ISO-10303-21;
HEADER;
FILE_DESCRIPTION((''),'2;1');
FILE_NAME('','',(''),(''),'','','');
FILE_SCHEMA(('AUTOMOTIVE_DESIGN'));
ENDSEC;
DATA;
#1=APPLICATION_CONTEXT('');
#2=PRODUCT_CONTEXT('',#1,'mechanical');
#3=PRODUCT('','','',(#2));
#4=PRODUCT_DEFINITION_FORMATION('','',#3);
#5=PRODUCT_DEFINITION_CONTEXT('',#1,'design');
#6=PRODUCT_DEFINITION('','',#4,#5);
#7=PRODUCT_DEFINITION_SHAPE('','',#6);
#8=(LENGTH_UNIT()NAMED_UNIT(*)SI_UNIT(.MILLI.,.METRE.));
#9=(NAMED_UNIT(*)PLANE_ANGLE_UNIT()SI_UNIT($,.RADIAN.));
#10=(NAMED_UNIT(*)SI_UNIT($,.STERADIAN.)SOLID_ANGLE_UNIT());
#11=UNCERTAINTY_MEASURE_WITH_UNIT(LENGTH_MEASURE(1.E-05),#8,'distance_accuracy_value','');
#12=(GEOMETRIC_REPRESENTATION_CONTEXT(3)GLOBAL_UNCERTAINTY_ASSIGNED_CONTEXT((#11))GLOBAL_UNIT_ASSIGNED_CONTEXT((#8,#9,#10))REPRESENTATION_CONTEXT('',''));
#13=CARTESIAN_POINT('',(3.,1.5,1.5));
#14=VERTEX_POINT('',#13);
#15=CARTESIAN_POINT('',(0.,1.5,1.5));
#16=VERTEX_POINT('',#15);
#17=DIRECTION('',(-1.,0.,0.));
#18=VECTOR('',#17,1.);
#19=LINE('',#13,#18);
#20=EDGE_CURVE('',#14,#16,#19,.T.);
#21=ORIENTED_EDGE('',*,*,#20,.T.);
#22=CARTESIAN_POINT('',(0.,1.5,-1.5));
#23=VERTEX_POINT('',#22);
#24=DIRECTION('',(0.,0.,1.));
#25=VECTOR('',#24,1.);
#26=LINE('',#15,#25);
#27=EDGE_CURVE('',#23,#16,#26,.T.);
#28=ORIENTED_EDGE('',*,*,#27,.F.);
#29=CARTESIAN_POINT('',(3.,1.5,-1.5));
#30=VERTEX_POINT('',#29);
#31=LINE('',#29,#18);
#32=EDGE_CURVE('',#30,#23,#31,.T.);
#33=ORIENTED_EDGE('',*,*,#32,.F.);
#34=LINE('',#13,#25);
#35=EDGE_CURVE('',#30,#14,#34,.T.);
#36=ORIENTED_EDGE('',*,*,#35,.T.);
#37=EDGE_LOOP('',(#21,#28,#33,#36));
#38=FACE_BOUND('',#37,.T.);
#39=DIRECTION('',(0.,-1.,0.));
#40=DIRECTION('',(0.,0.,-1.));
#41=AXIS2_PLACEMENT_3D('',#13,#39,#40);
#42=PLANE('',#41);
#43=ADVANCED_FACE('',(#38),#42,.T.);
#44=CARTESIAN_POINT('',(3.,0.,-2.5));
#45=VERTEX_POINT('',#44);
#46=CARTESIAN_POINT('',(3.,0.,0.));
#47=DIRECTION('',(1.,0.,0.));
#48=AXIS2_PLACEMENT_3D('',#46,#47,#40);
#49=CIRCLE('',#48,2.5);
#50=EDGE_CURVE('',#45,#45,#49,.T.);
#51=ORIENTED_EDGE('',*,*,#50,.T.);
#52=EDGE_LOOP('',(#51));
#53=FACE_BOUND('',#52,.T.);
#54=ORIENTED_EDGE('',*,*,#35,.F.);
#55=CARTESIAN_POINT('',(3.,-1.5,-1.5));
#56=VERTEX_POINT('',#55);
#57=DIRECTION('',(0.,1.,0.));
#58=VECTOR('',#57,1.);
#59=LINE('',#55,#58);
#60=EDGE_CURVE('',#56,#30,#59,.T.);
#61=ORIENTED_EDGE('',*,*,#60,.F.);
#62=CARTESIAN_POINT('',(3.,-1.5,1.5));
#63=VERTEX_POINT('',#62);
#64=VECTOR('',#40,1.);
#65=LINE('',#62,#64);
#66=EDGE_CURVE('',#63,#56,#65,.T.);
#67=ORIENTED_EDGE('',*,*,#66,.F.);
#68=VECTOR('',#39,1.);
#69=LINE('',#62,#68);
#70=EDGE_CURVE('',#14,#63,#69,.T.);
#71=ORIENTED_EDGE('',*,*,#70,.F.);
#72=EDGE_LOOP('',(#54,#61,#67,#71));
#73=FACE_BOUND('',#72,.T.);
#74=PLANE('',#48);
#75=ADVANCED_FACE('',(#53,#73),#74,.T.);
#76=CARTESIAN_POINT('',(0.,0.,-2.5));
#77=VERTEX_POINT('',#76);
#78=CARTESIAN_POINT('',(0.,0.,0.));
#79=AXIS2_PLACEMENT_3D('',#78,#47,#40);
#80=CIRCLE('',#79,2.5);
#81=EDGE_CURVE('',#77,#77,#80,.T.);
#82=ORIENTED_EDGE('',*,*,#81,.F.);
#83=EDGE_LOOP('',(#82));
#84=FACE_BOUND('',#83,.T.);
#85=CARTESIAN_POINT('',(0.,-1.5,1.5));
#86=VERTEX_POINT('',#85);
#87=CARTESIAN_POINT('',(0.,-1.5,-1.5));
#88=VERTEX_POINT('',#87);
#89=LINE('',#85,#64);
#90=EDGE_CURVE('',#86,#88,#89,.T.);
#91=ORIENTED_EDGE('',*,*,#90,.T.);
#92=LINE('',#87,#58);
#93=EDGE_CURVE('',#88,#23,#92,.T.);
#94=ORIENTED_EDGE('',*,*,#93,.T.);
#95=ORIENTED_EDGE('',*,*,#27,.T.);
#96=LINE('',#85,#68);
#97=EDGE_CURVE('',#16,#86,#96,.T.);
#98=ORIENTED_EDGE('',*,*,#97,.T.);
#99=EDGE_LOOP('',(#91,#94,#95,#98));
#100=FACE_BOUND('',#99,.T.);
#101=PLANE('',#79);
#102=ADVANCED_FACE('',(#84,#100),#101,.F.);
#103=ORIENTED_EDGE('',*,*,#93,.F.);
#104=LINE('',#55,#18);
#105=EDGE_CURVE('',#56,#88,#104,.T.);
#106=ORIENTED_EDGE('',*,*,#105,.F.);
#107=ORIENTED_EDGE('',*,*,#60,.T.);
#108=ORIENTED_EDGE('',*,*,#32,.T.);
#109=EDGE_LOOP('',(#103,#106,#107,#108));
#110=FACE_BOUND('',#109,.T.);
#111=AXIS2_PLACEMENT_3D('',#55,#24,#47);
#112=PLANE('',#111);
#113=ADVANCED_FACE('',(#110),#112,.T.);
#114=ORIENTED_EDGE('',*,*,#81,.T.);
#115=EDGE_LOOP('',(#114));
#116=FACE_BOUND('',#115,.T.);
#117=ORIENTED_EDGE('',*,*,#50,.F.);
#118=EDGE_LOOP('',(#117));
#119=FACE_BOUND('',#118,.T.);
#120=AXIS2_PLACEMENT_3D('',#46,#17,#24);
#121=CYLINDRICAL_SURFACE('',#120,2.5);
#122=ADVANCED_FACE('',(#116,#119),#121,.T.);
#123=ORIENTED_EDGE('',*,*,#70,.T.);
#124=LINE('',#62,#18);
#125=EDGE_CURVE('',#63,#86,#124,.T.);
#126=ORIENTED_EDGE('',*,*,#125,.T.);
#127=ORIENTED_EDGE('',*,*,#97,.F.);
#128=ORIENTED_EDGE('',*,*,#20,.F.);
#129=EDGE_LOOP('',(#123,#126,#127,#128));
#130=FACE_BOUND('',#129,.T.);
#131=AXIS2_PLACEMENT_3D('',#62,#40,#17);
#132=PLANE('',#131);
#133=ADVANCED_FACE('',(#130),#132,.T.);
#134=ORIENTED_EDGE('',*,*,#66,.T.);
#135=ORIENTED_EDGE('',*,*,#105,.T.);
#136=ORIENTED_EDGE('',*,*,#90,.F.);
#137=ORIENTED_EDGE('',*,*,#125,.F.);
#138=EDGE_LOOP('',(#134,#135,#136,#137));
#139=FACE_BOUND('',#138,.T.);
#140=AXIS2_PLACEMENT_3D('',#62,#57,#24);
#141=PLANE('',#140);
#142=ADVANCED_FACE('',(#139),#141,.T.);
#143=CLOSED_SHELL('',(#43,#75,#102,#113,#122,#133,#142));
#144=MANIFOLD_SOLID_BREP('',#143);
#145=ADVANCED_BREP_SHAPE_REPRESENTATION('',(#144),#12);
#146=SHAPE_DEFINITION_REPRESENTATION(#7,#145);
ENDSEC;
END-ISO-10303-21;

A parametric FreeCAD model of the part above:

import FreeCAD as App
import Part
import Sketcher
from FreeCAD import Vector
Q = App.Units.Quantity


def add_polygon(sketch, points):
    """Adds a closed chain of lines whose ends are joined by coincident constraints."""
    first, n = sketch.GeometryCount, len(points)
    for a, b in zip(points, points[1:] + points[:1]):
        sketch.addGeometry(Part.LineSegment(App.Vector(*a, 0), App.Vector(*b, 0)), False)
    for i in range(n):
        sketch.addConstraint(Sketcher.Constraint("Coincident", first + i, 2, first + (i + 1) % n, 1))

doc = App.newDocument("Part")
params = doc.addObject("Spreadsheet::Sheet", "Params")
for row, (alias, value) in enumerate([
    ("sketch1_diameter", "5 mm"),
    ("sketch1_width", "3 mm"),
    ("pad1_length", "3 mm"),
], start=1):
    params.set(f"A{row}", alias)
    params.set(f"B{row}", "=" + value)
    params.setAlias(f"B{row}", alias)

body = doc.addObject("PartDesign::Body", "Body")

sketch1 = doc.addObject("Sketcher::SketchObject", "Sketch")
body.addObject(sketch1)
sketch1.AttachmentSupport = (doc.YZ_Plane, [""])
sketch1.MapMode = "FlatFace"
sketch1.addGeometry(Part.Circle(Vector(0, 0, 0), Vector(0, 0, 1), 2.5), False)
add_polygon(sketch1, [(-1.5, -1.5), (-1.5, 1.5), (1.5, 1.5), (1.5, -1.5)])
sketch1.addConstraint(Sketcher.Constraint("Vertical", 1))
sketch1.addConstraint(Sketcher.Constraint("Horizontal", 2))
sketch1.addConstraint(Sketcher.Constraint("Vertical", 3))
sketch1.addConstraint(Sketcher.Constraint("Horizontal", 4))
sketch1.addConstraint(Sketcher.Constraint("Coincident", 0, 3, -1, 1))
sketch1.addConstraint(Sketcher.Constraint("Symmetric", 1, 2, 3, 2, -1, 1))
sketch1.addConstraint(Sketcher.Constraint("Equal", 4, 1))
sketch1.addConstraint(Sketcher.Constraint("Diameter", 0, Q("5 mm")))
sketch1.addConstraint(Sketcher.Constraint("DistanceX", 2, 1, 2, 2, Q("3 mm")))
sketch1.setExpression("Constraints[11]", "Params.sketch1_diameter")
sketch1.setExpression("Constraints[12]", "Params.sketch1_width")
pad1 = doc.addObject("PartDesign::Pad", "Pad")
body.addObject(pad1)
pad1.Profile = sketch1
pad1.setExpression("Length", "Params.pad1_length")

doc.recompute()
